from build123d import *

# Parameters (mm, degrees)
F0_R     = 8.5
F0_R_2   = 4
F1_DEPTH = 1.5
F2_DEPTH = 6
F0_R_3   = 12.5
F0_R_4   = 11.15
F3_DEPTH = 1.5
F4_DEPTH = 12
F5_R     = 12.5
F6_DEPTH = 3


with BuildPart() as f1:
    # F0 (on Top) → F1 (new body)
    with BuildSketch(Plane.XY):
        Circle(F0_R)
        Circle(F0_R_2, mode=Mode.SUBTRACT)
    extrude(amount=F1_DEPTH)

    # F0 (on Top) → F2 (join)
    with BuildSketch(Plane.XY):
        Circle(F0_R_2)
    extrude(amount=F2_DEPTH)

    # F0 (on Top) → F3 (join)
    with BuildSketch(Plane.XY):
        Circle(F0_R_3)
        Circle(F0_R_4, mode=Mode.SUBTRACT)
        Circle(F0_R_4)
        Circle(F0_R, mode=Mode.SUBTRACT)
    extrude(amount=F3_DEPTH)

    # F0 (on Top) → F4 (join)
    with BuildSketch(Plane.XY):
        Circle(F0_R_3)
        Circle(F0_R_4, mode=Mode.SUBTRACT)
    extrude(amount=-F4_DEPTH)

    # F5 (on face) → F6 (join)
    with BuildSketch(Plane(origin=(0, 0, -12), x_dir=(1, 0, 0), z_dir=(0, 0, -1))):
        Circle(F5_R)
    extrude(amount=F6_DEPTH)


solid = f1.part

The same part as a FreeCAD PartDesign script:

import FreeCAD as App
import Part
import Sketcher
Q = App.Units.Quantity

doc = App.newDocument("Part")
params = doc.addObject("Spreadsheet::Sheet", "Params")
for row, (alias, value) in enumerate([
    ("sketch1_diameter", "17 mm"),
    ("sketch1_diameter2", "8 mm"),
    ("pad1_length", "1.5 mm"),
    ("sketch2_diameter", "8 mm"),
    ("pad2_length", "6 mm"),
    ("sketch3_diameter", "25 mm"),
    ("sketch3_diameter2", "17 mm"),
    ("pad3_length", "1.5 mm"),
    ("sketch4_diameter", "25 mm"),
    ("sketch4_diameter2", "22.3 mm"),
    ("pad4_length", "12 mm"),
    ("sketch5_diameter", "25 mm"),
    ("pad5_length", "3 mm"),
], start=1):
    params.set(f"A{row}", alias)
    params.set(f"B{row}", "=" + value)
    params.setAlias(f"B{row}", alias)

body = doc.addObject("PartDesign::Body", "Body")

sketch1 = body.newObject("Sketcher::SketchObject", "Sketch")
sketch1.AttachmentSupport = (doc.getObject("XY_Plane"), [""])
sketch1.MapMode = "FlatFace"
sketch1.addGeometry(Part.Circle(App.Vector(0, 0, 0), App.Vector(0, 0, 1), 8.5), False)
sketch1.addGeometry(Part.Circle(App.Vector(0, 0, 0), App.Vector(0, 0, 1), 4), False)
sketch1.addConstraint(Sketcher.Constraint("Coincident", 0, 3, -1, 1))
sketch1.addConstraint(Sketcher.Constraint("Coincident", 1, 3, -1, 1))
sketch1.addConstraint(Sketcher.Constraint("Diameter", 0, Q("17 mm")))
sketch1.addConstraint(Sketcher.Constraint("Diameter", 1, Q("8 mm")))
sketch1.setExpression("Constraints[2]", "Params.sketch1_diameter")
sketch1.setExpression("Constraints[3]", "Params.sketch1_diameter2")
pad1 = body.newObject("PartDesign::Pad", "Pad")
pad1.Profile = sketch1
pad1.setExpression("Length", "Params.pad1_length")

sketch2 = body.newObject("Sketcher::SketchObject", "Sketch001")
sketch2.AttachmentSupport = (doc.getObject("XY_Plane"), [""])
sketch2.MapMode = "FlatFace"
sketch2.addGeometry(Part.Circle(App.Vector(0, 0, 0), App.Vector(0, 0, 1), 4), False)
sketch2.addConstraint(Sketcher.Constraint("Coincident", 0, 3, -1, 1))
sketch2.addConstraint(Sketcher.Constraint("Diameter", 0, Q("8 mm")))
sketch2.setExpression("Constraints[1]", "Params.sketch2_diameter")
pad2 = body.newObject("PartDesign::Pad", "Pad001")
pad2.Profile = sketch2
pad2.setExpression("Length", "Params.pad2_length")

sketch3 = body.newObject("Sketcher::SketchObject", "Sketch002")
sketch3.AttachmentSupport = (doc.getObject("XY_Plane"), [""])
sketch3.MapMode = "FlatFace"
sketch3.addGeometry(Part.Circle(App.Vector(0, 0, 0), App.Vector(0, 0, 1), 12.5), False)
sketch3.addGeometry(Part.Circle(App.Vector(0, 0, 0), App.Vector(0, 0, 1), 8.5), False)
sketch3.addConstraint(Sketcher.Constraint("Coincident", 0, 3, -1, 1))
sketch3.addConstraint(Sketcher.Constraint("Coincident", 1, 3, -1, 1))
sketch3.addConstraint(Sketcher.Constraint("Diameter", 0, Q("25 mm")))
sketch3.addConstraint(Sketcher.Constraint("Diameter", 1, Q("17 mm")))
sketch3.setExpression("Constraints[2]", "Params.sketch3_diameter")
sketch3.setExpression("Constraints[3]", "Params.sketch3_diameter2")
pad3 = body.newObject("PartDesign::Pad", "Pad002")
pad3.Profile = sketch3
pad3.setExpression("Length", "Params.pad3_length")

sketch4 = body.newObject("Sketcher::SketchObject", "Sketch003")
sketch4.AttachmentSupport = (doc.getObject("XY_Plane"), [""])
sketch4.MapMode = "FlatFace"
sketch4.addGeometry(Part.Circle(App.Vector(0, 0, 0), App.Vector(0, 0, 1), 12.5), False)
sketch4.addGeometry(Part.Circle(App.Vector(0, 0, 0), App.Vector(0, 0, 1), 11.15), False)
sketch4.addConstraint(Sketcher.Constraint("Coincident", 0, 3, -1, 1))
sketch4.addConstraint(Sketcher.Constraint("Coincident", 1, 3, -1, 1))
sketch4.addConstraint(Sketcher.Constraint("Diameter", 0, Q("25 mm")))
sketch4.addConstraint(Sketcher.Constraint("Diameter", 1, Q("22.3 mm")))
sketch4.setExpression("Constraints[2]", "Params.sketch4_diameter")
sketch4.setExpression("Constraints[3]", "Params.sketch4_diameter2")
pad4 = body.newObject("PartDesign::Pad", "Pad003")
pad4.Profile = sketch4
pad4.setExpression("Length", "Params.pad4_length")
pad4.Reversed = True

sketch5 = body.newObject("Sketcher::SketchObject", "Sketch004")
sketch5.AttachmentSupport = (doc.getObject("XY_Plane"), [""])
sketch5.MapMode = "FlatFace"
sketch5.AttachmentOffset = App.Placement(App.Vector(0, 0, -12), App.Rotation())
sketch5.addGeometry(Part.Circle(App.Vector(0, 0, 0), App.Vector(0, 0, 1), 12.5), False)
sketch5.addConstraint(Sketcher.Constraint("Coincident", 0, 3, -1, 1))
sketch5.addConstraint(Sketcher.Constraint("Diameter", 0, Q("25 mm")))
sketch5.setExpression("Constraints[1]", "Params.sketch5_diameter")
pad5 = body.newObject("PartDesign::Pad", "Pad004")
pad5.Profile = sketch5
pad5.setExpression("Length", "Params.pad5_length")
pad5.Reversed = True

doc.recompute()
